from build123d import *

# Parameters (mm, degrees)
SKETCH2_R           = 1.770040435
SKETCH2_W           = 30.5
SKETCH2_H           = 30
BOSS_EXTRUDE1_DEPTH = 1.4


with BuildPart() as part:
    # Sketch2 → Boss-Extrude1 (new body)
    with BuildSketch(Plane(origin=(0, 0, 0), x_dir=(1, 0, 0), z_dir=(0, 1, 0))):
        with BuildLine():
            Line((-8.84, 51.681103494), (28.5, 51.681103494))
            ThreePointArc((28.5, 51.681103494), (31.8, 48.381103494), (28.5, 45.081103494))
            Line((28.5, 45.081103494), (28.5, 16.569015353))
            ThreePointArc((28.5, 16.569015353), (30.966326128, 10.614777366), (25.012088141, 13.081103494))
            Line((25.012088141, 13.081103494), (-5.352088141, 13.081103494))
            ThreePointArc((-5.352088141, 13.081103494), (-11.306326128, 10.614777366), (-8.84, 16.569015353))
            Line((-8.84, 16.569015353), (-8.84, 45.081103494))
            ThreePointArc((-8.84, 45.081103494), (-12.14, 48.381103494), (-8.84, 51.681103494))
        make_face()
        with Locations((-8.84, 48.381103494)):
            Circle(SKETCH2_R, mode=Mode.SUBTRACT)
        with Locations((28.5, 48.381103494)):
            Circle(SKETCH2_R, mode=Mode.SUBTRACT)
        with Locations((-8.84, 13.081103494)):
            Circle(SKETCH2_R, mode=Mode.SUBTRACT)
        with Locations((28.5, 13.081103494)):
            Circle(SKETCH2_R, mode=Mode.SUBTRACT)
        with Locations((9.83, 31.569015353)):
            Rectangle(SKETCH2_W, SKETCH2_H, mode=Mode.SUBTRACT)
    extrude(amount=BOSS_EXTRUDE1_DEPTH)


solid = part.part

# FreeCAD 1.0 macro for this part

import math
import FreeCAD as App
import Part
import Sketcher
Q = App.Units.Quantity


def add_polygon(sketch, points):
    """Adds a closed chain of lines whose ends are joined by coincident constraints."""
    first, n = sketch.GeometryCount, len(points)
    for a, b in zip(points, points[1:] + points[:1]):
        sketch.addGeometry(Part.LineSegment(App.Vector(*a, 0), App.Vector(*b, 0)), False)
    for i in range(n):
        sketch.addConstraint(Sketcher.Constraint("Coincident", first + i, 2, first + (i + 1) % n, 1))

doc = App.newDocument("Part")
body = doc.addObject("PartDesign::Body", "Body")

# Sketch on XZ plane
sketch1 = body.newObject("Sketcher::SketchObject", "Sketch")
sketch1.AttachmentSupport = (doc.getObject("XZ_Plane"), [""])
sketch1.MapMode = "FlatFace"
sketch1.addGeometry(Part.LineSegment(App.Vector(28.5, -51.7, 0), App.Vector(-8.8, -51.7, 0)), False)  # 0
sketch1.addGeometry(Part.ArcOfCircle(Part.Circle(App.Vector(-8.8, -48.4, 0), App.Vector(0, 0, 1), 3.3), math.radians(90), math.radians(270)), False)  # 1
sketch1.addGeometry(Part.LineSegment(App.Vector(-8.8, -45.1, 0), App.Vector(-8.8, -16.6, 0)), False)  # 2
sketch1.addGeometry(Part.ArcOfCircle(Part.Circle(App.Vector(-8.8, -13.1, 0), App.Vector(0, 0, 1), 3.5), math.radians(0), math.radians(270)), False)  # 3
sketch1.addGeometry(Part.LineSegment(App.Vector(-5.4, -13.1, 0), App.Vector(25, -13.1, 0)), False)  # 4
sketch1.addGeometry(Part.ArcOfCircle(Part.Circle(App.Vector(28.5, -13.1, 0), App.Vector(0, 0, 1), 3.5), math.radians(-90), math.radians(180)), False)  # 5
sketch1.addGeometry(Part.LineSegment(App.Vector(28.5, -16.6, 0), App.Vector(28.5, -45.1, 0)), False)  # 6
sketch1.addGeometry(Part.ArcOfCircle(Part.Circle(App.Vector(28.5, -48.4, 0), App.Vector(0, 0, 1), 3.3), math.radians(-90), math.radians(90)), False)  # 7
sketch1.addGeometry(Part.Circle(App.Vector(28.5, -13.1, 0), App.Vector(0, 0, 1), 1.8), False)  # 8
sketch1.addGeometry(Part.Circle(App.Vector(-8.8, -13.1, 0), App.Vector(0, 0, 1), 1.8), False)  # 9
sketch1.addGeometry(Part.Circle(App.Vector(28.5, -48.4, 0), App.Vector(0, 0, 1), 1.8), False)  # 10
add_polygon(sketch1, [(-5.4, -16.6), (-5.4, -46.6), (25.1, -46.6), (25.1, -16.6)])  # lines 11-14
sketch1.addGeometry(Part.Circle(App.Vector(-8.8, -48.4, 0), App.Vector(0, 0, 1), 1.8), False)  # 15
sketch1.addConstraint([
    Sketcher.Constraint("Tangent", 0, 2, 1, 2),
    Sketcher.Constraint("Coincident", 1, 1, 2, 1),
    Sketcher.Constraint("Coincident", 2, 2, 3, 2),
    Sketcher.Constraint("Coincident", 3, 1, 4, 1),
    Sketcher.Constraint("Coincident", 4, 2, 5, 2),
    Sketcher.Constraint("Coincident", 5, 1, 6, 1),
    Sketcher.Constraint("Coincident", 6, 2, 7, 2),
    Sketcher.Constraint("Tangent", 7, 1, 0, 1),
    Sketcher.Constraint("Horizontal", 0),
    Sketcher.Constraint("Vertical", 2),
    Sketcher.Constraint("Horizontal", 4),
    Sketcher.Constraint("Vertical", 6),
    Sketcher.Constraint("Vertical", 11),
    Sketcher.Constraint("Horizontal", 12),
    Sketcher.Constraint("Vertical", 13),
    Sketcher.Constraint("Horizontal", 14),
    Sketcher.Constraint("Coincident", 8, 3, 5, 3),
    Sketcher.Constraint("Coincident", 9, 3, 3, 3),
    Sketcher.Constraint("Coincident", 10, 3, 7, 3),
    Sketcher.Constraint("Coincident", 15, 3, 1, 3),
    Sketcher.Constraint("Equal", 3, 5),
    Sketcher.Constraint("Equal", 1, 7),
    Sketcher.Constraint("Equal", 8, 9),
    Sketcher.Constraint("Equal", 9, 10),
    Sketcher.Constraint("Equal", 10, 15),
    Sketcher.Constraint("Horizontal", 3, 3, 5, 3),
    Sketcher.Constraint("Horizontal", 9, 3, 3, 1),
    Sketcher.Constraint("Horizontal", 5, 1, 13, 2),
    Sketcher.Constraint("Vertical", 1, 3, 3, 3),
    Sketcher.Constraint("Vertical", 5, 3, 7, 3),
    Sketcher.Constraint("Vertical", 0, 2, 1, 1),
    Sketcher.Constraint("Vertical", 10, 3, 5, 1),
    Sketcher.Constraint("Radius", 1, Q("3.3 mm")),
    Sketcher.Constraint("DistanceY", 11, 2, 11, 1, Q("30 mm")),
    Sketcher.Constraint("DistanceX", 12, 1, 12, 2, Q("30.5 mm")),
    Sketcher.Constraint("DistanceY", 1, 1, 3, 3, Q("32 mm")),
    Sketcher.Constraint("DistanceX", 0, 2, 0, 1, Q("37.34 mm")),
    Sketcher.Constraint("DistanceX", -1, 1, 5, 3, Q("28.5 mm")),
    Sketcher.Constraint("Diameter", 8, Q("3.540081 mm")),
    Sketcher.Constraint("DistanceX", 11, 2, -1, 1, Q("5.42 mm")),
    Sketcher.Constraint("Radius", 3, Q("3.487912 mm")),
    Sketcher.Constraint("DistanceY", 1, 3, -1, 1, Q("48.381103 mm")),
])
pad1 = body.newObject("PartDesign::Pad", "Pad")
pad1.Profile = sketch1
pad1.Length = 1.4
pad1.Reversed = True

doc.recompute()
